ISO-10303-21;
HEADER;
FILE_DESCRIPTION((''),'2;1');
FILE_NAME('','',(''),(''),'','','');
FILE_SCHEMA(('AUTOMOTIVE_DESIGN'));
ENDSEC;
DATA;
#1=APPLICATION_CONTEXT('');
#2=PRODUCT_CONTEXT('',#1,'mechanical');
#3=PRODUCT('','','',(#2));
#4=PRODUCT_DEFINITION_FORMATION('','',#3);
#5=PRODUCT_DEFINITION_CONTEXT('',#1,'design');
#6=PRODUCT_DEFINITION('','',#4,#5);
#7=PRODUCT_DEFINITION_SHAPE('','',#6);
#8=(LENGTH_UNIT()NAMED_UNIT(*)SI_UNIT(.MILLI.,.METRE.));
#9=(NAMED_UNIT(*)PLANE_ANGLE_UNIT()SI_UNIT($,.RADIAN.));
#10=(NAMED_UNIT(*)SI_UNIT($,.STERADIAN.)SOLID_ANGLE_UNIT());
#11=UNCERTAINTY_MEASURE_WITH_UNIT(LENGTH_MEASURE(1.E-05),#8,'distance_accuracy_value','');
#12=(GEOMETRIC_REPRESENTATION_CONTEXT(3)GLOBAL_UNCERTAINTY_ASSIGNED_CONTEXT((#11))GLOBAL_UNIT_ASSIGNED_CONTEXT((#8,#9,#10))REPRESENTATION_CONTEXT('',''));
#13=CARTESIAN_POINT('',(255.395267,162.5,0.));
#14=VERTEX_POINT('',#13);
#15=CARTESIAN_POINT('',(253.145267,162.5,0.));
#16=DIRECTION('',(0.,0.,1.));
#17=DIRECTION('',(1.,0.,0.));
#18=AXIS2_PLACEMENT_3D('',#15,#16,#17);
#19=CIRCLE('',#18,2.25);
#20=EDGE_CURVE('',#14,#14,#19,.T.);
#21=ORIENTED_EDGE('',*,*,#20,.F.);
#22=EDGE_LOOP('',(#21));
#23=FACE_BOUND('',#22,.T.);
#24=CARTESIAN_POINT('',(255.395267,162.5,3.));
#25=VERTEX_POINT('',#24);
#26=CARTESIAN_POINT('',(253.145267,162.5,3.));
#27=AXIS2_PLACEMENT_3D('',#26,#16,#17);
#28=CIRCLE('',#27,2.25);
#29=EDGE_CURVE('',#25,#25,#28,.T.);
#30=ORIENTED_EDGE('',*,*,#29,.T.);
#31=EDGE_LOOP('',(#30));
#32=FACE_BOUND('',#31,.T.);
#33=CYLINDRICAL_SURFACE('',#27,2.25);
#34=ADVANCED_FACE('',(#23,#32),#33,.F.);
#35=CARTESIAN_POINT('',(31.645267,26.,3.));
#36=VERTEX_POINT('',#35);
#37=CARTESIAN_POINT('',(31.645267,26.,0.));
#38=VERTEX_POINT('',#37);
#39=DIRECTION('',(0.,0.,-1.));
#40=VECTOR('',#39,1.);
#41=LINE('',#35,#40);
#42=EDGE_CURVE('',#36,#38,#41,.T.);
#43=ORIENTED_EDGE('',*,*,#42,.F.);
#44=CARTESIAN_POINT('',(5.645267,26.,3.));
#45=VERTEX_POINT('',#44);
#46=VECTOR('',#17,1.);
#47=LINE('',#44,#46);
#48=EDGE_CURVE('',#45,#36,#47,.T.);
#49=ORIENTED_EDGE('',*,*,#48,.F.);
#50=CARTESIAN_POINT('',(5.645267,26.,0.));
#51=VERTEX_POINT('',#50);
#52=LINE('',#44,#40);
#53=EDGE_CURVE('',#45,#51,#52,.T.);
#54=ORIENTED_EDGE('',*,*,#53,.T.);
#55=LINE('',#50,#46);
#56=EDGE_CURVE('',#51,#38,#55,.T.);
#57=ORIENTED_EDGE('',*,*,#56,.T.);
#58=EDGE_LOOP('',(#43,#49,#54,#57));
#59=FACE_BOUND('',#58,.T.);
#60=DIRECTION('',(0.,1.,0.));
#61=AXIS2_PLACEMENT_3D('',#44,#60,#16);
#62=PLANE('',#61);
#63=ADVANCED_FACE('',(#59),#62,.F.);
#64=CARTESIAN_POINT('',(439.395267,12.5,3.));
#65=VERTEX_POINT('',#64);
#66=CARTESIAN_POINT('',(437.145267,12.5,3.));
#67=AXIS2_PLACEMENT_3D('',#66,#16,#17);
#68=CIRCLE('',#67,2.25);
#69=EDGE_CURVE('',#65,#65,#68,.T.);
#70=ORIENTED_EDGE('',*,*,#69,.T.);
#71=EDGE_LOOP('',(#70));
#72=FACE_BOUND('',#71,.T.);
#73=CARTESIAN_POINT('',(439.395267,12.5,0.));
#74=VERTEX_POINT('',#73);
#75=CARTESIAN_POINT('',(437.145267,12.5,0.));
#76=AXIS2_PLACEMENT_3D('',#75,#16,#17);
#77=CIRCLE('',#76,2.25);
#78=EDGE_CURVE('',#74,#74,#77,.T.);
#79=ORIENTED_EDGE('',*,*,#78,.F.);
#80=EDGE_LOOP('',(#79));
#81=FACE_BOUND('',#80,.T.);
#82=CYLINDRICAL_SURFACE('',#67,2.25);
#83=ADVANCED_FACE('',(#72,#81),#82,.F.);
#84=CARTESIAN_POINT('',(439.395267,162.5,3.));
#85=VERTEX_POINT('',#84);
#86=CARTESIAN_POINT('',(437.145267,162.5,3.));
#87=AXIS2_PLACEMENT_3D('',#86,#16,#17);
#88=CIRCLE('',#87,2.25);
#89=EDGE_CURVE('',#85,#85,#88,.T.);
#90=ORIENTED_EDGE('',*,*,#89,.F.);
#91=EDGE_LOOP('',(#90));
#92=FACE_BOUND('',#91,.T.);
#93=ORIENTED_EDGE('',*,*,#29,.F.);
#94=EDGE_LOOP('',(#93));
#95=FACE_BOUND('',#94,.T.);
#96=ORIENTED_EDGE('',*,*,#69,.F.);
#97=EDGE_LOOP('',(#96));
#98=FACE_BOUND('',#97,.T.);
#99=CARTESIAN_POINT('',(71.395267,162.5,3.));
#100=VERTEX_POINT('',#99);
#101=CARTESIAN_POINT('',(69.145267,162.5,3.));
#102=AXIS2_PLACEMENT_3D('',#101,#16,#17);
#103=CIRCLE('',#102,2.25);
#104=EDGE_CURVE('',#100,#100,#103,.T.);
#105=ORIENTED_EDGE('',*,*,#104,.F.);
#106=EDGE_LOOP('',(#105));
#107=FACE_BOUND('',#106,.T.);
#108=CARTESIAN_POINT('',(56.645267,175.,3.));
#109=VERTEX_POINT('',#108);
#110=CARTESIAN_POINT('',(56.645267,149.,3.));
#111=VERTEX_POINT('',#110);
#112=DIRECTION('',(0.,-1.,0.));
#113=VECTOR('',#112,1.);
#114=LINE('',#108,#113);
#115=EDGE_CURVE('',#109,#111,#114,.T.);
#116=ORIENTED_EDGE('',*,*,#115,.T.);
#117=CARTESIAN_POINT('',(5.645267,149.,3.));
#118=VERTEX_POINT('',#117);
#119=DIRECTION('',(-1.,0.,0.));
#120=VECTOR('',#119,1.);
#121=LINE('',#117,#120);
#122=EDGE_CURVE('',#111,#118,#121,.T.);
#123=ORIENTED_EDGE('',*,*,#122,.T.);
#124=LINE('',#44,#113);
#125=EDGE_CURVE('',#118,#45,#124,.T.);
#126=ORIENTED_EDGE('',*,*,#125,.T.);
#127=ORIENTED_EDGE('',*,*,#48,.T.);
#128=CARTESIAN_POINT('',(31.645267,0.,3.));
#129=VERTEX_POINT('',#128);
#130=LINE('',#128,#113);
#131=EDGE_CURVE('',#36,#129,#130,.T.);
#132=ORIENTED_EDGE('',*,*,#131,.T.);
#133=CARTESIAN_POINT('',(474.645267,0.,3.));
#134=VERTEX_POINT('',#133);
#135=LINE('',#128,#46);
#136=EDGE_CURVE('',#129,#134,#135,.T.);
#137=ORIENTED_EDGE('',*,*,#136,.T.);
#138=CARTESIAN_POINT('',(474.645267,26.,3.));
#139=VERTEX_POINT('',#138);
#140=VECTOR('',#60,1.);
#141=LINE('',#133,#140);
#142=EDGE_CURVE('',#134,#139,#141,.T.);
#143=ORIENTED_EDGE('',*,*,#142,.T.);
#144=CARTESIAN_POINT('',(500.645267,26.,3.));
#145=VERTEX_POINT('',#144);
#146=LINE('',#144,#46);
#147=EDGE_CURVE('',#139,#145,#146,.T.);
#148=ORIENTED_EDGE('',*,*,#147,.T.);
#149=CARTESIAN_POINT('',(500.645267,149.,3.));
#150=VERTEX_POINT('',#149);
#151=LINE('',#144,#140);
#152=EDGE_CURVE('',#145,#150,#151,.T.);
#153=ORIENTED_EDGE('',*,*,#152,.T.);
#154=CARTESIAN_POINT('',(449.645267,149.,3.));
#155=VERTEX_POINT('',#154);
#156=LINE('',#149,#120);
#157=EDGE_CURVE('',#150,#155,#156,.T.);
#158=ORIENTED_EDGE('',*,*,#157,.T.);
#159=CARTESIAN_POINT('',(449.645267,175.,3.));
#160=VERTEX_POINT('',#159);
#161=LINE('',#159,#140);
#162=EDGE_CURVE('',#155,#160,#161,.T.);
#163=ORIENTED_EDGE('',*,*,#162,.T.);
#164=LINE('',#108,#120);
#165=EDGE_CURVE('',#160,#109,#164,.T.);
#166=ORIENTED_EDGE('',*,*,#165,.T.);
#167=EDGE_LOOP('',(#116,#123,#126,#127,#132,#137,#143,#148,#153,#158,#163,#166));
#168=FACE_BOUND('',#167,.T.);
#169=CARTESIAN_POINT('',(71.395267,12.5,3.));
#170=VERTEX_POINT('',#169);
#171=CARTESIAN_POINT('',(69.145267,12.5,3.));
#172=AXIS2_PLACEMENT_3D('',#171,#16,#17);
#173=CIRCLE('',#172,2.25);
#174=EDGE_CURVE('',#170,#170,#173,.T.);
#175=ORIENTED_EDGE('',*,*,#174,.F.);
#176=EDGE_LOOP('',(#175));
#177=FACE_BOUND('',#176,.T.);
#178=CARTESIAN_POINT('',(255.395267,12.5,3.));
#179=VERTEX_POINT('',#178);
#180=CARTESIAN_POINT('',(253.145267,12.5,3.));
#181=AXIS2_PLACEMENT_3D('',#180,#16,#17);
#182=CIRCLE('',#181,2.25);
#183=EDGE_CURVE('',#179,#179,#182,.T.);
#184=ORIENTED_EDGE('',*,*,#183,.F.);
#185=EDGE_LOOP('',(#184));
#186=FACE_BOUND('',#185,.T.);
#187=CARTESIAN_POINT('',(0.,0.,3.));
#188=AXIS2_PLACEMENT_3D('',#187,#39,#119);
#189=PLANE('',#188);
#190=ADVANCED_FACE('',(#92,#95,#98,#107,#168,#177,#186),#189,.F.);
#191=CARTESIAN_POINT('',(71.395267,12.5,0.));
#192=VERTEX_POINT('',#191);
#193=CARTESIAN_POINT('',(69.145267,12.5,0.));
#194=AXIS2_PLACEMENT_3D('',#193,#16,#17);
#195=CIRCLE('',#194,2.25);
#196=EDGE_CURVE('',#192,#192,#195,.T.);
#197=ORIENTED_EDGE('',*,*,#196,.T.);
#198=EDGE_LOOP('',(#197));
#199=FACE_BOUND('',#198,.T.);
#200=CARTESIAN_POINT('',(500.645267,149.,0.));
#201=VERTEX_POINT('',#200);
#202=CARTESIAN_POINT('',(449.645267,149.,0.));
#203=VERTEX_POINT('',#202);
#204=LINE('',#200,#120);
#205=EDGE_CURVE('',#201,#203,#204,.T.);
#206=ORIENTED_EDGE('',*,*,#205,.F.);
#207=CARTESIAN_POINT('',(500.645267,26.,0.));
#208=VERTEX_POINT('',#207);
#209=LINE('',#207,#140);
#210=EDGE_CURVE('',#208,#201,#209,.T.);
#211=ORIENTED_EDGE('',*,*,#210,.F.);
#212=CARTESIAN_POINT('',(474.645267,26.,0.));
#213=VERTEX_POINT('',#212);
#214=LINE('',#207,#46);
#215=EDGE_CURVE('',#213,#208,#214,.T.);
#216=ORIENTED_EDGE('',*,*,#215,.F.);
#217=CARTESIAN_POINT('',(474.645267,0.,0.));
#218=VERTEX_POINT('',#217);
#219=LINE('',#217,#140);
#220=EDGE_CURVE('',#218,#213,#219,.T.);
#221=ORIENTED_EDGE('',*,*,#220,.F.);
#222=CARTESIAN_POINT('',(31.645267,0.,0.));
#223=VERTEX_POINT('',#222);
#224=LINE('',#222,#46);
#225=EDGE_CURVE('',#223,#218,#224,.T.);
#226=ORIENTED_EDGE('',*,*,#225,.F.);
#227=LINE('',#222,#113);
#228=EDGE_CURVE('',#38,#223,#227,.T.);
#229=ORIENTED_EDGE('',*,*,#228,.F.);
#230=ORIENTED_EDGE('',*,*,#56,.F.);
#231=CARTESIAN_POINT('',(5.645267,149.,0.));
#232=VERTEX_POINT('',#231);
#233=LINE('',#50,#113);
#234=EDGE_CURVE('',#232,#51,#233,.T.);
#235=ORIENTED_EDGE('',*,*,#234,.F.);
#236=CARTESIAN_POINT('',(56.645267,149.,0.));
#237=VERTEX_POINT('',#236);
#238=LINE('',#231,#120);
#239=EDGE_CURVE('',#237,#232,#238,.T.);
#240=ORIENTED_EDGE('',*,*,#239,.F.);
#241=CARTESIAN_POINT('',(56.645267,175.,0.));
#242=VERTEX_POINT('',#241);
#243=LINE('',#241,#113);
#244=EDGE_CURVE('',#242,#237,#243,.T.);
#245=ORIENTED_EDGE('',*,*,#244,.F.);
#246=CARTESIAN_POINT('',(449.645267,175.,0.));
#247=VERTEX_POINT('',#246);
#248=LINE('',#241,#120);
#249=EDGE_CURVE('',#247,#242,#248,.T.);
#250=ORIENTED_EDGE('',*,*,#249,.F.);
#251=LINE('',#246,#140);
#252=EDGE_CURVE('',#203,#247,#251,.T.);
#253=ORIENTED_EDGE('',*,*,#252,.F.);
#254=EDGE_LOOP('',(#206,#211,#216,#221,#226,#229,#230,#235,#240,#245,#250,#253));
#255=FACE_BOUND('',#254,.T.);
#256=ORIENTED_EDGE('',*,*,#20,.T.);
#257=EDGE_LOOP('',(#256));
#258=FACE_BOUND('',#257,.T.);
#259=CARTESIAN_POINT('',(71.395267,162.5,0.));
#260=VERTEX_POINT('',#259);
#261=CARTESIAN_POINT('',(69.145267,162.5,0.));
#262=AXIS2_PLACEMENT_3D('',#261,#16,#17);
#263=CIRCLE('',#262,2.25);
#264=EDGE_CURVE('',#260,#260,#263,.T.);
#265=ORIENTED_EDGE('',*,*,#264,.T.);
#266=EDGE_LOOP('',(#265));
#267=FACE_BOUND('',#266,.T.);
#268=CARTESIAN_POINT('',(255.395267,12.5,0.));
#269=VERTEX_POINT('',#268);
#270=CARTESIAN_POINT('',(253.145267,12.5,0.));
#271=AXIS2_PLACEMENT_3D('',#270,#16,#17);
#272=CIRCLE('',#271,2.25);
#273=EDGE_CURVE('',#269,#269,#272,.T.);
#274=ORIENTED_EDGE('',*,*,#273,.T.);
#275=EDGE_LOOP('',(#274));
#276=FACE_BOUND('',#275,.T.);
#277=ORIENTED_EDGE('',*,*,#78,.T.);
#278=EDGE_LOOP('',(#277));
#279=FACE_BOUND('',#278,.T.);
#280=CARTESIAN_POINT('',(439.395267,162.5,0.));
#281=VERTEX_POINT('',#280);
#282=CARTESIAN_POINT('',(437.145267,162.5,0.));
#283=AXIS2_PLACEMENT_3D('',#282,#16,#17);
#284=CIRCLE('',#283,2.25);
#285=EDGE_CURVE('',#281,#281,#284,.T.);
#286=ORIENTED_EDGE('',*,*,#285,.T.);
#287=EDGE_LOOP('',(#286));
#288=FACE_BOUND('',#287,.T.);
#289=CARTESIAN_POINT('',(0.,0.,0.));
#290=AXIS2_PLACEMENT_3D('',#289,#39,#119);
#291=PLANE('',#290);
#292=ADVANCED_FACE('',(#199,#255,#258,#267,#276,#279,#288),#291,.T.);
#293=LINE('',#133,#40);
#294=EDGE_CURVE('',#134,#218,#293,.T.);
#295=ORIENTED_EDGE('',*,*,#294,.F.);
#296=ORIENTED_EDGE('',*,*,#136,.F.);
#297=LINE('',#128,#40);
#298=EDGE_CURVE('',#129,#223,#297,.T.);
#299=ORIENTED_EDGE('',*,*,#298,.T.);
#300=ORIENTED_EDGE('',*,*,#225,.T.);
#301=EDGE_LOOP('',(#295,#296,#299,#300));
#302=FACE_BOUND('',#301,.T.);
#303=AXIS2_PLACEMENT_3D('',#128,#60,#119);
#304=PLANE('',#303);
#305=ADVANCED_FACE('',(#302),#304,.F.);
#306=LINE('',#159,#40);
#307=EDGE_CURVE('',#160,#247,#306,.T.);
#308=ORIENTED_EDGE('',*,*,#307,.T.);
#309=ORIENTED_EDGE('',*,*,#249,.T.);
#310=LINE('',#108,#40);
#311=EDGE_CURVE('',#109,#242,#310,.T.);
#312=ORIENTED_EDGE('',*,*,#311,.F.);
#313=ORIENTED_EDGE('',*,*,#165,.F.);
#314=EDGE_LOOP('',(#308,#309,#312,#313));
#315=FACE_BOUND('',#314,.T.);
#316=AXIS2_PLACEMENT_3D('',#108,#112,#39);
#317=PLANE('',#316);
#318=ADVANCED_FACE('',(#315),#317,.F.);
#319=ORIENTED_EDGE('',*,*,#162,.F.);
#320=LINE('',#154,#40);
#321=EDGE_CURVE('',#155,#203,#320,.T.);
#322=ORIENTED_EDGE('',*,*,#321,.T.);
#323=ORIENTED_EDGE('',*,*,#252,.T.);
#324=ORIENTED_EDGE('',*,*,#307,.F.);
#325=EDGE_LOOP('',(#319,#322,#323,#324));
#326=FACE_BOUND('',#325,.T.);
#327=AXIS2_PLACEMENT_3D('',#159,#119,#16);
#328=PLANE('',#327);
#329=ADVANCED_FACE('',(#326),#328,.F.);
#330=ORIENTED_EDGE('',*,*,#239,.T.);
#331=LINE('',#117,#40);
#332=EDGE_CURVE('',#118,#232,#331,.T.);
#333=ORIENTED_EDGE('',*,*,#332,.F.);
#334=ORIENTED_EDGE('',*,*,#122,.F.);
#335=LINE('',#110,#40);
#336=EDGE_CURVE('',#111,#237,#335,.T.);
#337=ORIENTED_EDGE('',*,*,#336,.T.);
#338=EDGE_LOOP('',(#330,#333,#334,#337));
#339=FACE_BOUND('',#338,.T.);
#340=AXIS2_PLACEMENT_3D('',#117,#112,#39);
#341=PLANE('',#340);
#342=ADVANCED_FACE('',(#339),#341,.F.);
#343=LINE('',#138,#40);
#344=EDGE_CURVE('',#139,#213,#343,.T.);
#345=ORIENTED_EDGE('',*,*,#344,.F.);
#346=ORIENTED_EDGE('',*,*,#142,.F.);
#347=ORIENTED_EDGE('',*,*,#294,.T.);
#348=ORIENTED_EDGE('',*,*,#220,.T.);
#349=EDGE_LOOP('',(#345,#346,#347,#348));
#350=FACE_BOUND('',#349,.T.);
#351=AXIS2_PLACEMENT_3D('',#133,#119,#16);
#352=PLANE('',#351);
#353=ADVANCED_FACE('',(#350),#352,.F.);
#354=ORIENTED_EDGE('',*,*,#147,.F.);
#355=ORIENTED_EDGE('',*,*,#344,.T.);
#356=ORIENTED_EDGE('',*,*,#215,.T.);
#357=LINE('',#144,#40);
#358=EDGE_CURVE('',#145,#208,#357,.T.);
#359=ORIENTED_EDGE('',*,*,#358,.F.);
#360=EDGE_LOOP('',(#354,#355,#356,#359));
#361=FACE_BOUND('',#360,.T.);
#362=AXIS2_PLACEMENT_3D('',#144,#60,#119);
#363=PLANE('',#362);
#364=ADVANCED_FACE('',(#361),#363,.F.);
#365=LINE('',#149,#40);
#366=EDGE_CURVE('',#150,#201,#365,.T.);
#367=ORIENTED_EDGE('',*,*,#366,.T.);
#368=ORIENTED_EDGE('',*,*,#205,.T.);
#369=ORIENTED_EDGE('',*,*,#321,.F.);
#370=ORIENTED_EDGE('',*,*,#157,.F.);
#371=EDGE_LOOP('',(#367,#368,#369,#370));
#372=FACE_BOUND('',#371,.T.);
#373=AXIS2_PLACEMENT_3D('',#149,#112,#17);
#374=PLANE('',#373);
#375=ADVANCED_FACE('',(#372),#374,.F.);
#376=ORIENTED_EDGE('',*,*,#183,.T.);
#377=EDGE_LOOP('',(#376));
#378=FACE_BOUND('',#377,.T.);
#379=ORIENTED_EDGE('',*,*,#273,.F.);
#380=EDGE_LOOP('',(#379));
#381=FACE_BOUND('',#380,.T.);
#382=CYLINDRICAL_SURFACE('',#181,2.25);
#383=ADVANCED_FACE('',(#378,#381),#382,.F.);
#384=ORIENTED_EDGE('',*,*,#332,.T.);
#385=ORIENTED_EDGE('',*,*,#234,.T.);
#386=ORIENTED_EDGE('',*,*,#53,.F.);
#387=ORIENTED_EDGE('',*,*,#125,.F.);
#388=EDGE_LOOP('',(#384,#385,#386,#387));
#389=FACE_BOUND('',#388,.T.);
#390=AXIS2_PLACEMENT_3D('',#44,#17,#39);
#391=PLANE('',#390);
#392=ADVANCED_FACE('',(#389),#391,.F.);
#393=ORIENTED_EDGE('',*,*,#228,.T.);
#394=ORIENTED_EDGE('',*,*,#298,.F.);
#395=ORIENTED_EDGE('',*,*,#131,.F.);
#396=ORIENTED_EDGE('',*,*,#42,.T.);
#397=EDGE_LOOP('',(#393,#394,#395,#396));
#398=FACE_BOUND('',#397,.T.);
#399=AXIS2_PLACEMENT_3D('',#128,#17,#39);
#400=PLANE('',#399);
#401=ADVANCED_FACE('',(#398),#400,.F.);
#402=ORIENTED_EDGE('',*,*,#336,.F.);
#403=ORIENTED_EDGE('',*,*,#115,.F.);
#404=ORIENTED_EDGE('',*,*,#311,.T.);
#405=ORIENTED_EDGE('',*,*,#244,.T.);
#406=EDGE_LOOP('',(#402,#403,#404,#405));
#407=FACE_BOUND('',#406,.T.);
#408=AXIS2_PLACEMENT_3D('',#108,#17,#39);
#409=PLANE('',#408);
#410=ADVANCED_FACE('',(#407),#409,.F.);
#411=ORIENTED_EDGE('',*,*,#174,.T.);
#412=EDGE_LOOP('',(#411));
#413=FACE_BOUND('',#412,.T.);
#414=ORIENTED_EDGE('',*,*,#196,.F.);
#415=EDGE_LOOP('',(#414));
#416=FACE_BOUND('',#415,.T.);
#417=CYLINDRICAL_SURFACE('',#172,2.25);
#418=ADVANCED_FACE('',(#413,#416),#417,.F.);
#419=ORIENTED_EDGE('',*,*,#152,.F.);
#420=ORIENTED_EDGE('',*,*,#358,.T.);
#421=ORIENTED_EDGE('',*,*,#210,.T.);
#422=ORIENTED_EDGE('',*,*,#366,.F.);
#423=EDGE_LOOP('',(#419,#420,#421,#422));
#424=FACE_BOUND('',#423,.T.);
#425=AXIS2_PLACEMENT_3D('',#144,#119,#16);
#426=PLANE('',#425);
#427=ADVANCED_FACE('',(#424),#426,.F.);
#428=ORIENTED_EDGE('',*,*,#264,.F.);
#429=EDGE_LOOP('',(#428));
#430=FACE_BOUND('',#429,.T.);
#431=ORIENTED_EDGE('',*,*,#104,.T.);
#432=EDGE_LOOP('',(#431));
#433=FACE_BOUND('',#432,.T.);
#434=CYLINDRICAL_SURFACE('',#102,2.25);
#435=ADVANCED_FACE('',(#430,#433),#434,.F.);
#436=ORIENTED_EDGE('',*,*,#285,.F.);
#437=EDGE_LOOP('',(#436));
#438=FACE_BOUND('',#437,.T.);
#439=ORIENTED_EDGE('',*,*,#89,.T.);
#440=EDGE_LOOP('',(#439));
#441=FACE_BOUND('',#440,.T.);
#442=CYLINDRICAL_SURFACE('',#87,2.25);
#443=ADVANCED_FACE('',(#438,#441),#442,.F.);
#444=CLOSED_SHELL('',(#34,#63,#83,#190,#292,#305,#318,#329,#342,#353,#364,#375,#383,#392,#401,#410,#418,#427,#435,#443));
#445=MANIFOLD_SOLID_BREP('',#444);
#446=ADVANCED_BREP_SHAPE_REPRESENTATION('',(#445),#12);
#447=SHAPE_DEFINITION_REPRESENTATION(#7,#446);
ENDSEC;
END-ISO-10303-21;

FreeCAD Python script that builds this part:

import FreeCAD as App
import Part
import Sketcher

V = App.Vector

doc = App.newDocument("Part")
body = doc.addObject("PartDesign::Body", "Body")

# Sketch on XY plane
sketch1 = body.newObject("Sketcher::SketchObject", "Sketch")
sketch1.AttachmentSupport = (doc.getObject("XY_Plane"), [""])
sketch1.MapMode = "FlatFace"
sketch1.addGeometry([
    Part.LineSegment(V(32, 0, 0), V(475, 0, 0)),  # 0
    Part.LineSegment(V(475, 0, 0), V(475, 26, 0)),  # 1
    Part.LineSegment(V(475, 26, 0), V(501, 26, 0)),  # 2
    Part.LineSegment(V(501, 26, 0), V(501, 149, 0)),  # 3
    Part.LineSegment(V(501, 149, 0), V(450, 149, 0)),  # 4
    Part.LineSegment(V(450, 149, 0), V(450, 175, 0)),  # 5
    Part.LineSegment(V(450, 175, 0), V(57, 175, 0)),  # 6
    Part.LineSegment(V(57, 175, 0), V(57, 149, 0)),  # 7
    Part.LineSegment(V(57, 149, 0), V(6, 149, 0)),  # 8
    Part.LineSegment(V(6, 149, 0), V(6, 26, 0)),  # 9
    Part.LineSegment(V(6, 26, 0), V(32, 26, 0)),  # 10
    Part.LineSegment(V(32, 26, 0), V(32, 0, 0)),  # 11
], False)
sketch1.addConstraint([
    Sketcher.Constraint("Coincident", 0, 2, 1, 1),
    Sketcher.Constraint("Coincident", 1, 2, 2, 1),
    Sketcher.Constraint("Coincident", 2, 2, 3, 1),
    Sketcher.Constraint("Coincident", 3, 2, 4, 1),
    Sketcher.Constraint("Coincident", 4, 2, 5, 1),
    Sketcher.Constraint("Coincident", 5, 2, 6, 1),
    Sketcher.Constraint("Coincident", 6, 2, 7, 1),
    Sketcher.Constraint("Coincident", 7, 2, 8, 1),
    Sketcher.Constraint("Coincident", 8, 2, 9, 1),
    Sketcher.Constraint("Coincident", 9, 2, 10, 1),
    Sketcher.Constraint("Coincident", 10, 2, 11, 1),
    Sketcher.Constraint("Coincident", 11, 2, 0, 1),
    Sketcher.Constraint("Horizontal", 0),
    Sketcher.Constraint("Vertical", 1),
    Sketcher.Constraint("Horizontal", 2),
    Sketcher.Constraint("Vertical", 3),
    Sketcher.Constraint("Horizontal", 4),
    Sketcher.Constraint("Vertical", 5),
    Sketcher.Constraint("Horizontal", 6),
    Sketcher.Constraint("Vertical", 7),
    Sketcher.Constraint("Horizontal", 8),
    Sketcher.Constraint("Vertical", 9),
    Sketcher.Constraint("Horizontal", 10),
    Sketcher.Constraint("Vertical", 11),
    Sketcher.Constraint("PointOnObject", 0, 2, -1),
    Sketcher.Constraint("Horizontal", 4, 2, 7, 2),
    Sketcher.Constraint("Horizontal", 2, 2, 9, 2),
    Sketcher.Constraint("Equal", 4, 8),
    Sketcher.Constraint("Equal", 2, 10),
    Sketcher.Constraint("Equal", 10, 1),
    Sketcher.Constraint("Equal", 1, 5),
    Sketcher.Constraint("DistanceX", 0, 1, 0, 2, 443.0),
    Sketcher.Constraint("DistanceX", 2, 1, 2, 2, 26.0),
    Sketcher.Constraint("DistanceX", 4, 2, 4, 1, 51.0),
    Sketcher.Constraint("DistanceY", 3, 1, 3, 2, 123.0),
    Sketcher.Constraint("DistanceX", -1, 1, 0, 2, 474.645267),
])
pad1 = body.newObject("PartDesign::Pad", "Pad")
pad1.Profile = sketch1
pad1.Length = 3

# Sketch on XY plane
sketch2 = body.newObject("Sketcher::SketchObject", "Sketch001")
sketch2.AttachmentSupport = (doc.getObject("XY_Plane"), [""])
sketch2.MapMode = "FlatFace"
sketch2.AttachmentOffset = App.Placement(V(0, 0, 3), App.Rotation())
sketch2.addGeometry([
    Part.Circle(V(253.1, 12.5, 0), V(0, 0, 1), 2.2),  # 0
    Part.Circle(V(253.1, 162.5, 0), V(0, 0, 1), 2.2),  # 1
    Part.Circle(V(437.1, 12.5, 0), V(0, 0, 1), 2.2),  # 2
    Part.Circle(V(437.1, 162.5, 0), V(0, 0, 1), 2.2),  # 3
    Part.Circle(V(69.1, 162.5, 0), V(0, 0, 1), 2.2),  # 4
    Part.Circle(V(69.1, 12.5, 0), V(0, 0, 1), 2.2),  # 5
], False)
sketch2.addConstraint([
    Sketcher.Constraint("Equal", 0, 1),
    Sketcher.Constraint("Equal", 1, 2),
    Sketcher.Constraint("Equal", 2, 3),
    Sketcher.Constraint("Equal", 3, 4),
    Sketcher.Constraint("Equal", 4, 5),
    Sketcher.Constraint("Horizontal", 0, 3, 2, 3),
    Sketcher.Constraint("Horizontal", 1, 3, 3, 3),
    Sketcher.Constraint("Horizontal", 3, 3, 4, 3),
    Sketcher.Constraint("Horizontal", 2, 3, 5, 3),
    Sketcher.Constraint("Vertical", 0, 3, 1, 3),
    Sketcher.Constraint("Vertical", 2, 3, 3, 3),
    Sketcher.Constraint("Vertical", 4, 3, 5, 3),
    Sketcher.Constraint("Diameter", 0, 4.5),
    Sketcher.Constraint("DistanceY", 0, 3, 1, 3, 150.0),
    Sketcher.Constraint("DistanceX", 0, 3, 2, 3, 184.0),
    Sketcher.Constraint("DistanceX", 4, 3, 1, 3, 184.0),
    Sketcher.Constraint("DistanceY", -1, 1, 0, 3, 12.5),
    Sketcher.Constraint("DistanceX", -1, 1, 0, 3, 253.145267),
])
doc.recompute()
hole = body.newObject("PartDesign::Hole", "Hole")
hole.Profile = sketch2
hole.ThreadType = "None"
hole.Diameter = 4.5
hole.DepthType = "ThroughAll"

doc.recompute()
